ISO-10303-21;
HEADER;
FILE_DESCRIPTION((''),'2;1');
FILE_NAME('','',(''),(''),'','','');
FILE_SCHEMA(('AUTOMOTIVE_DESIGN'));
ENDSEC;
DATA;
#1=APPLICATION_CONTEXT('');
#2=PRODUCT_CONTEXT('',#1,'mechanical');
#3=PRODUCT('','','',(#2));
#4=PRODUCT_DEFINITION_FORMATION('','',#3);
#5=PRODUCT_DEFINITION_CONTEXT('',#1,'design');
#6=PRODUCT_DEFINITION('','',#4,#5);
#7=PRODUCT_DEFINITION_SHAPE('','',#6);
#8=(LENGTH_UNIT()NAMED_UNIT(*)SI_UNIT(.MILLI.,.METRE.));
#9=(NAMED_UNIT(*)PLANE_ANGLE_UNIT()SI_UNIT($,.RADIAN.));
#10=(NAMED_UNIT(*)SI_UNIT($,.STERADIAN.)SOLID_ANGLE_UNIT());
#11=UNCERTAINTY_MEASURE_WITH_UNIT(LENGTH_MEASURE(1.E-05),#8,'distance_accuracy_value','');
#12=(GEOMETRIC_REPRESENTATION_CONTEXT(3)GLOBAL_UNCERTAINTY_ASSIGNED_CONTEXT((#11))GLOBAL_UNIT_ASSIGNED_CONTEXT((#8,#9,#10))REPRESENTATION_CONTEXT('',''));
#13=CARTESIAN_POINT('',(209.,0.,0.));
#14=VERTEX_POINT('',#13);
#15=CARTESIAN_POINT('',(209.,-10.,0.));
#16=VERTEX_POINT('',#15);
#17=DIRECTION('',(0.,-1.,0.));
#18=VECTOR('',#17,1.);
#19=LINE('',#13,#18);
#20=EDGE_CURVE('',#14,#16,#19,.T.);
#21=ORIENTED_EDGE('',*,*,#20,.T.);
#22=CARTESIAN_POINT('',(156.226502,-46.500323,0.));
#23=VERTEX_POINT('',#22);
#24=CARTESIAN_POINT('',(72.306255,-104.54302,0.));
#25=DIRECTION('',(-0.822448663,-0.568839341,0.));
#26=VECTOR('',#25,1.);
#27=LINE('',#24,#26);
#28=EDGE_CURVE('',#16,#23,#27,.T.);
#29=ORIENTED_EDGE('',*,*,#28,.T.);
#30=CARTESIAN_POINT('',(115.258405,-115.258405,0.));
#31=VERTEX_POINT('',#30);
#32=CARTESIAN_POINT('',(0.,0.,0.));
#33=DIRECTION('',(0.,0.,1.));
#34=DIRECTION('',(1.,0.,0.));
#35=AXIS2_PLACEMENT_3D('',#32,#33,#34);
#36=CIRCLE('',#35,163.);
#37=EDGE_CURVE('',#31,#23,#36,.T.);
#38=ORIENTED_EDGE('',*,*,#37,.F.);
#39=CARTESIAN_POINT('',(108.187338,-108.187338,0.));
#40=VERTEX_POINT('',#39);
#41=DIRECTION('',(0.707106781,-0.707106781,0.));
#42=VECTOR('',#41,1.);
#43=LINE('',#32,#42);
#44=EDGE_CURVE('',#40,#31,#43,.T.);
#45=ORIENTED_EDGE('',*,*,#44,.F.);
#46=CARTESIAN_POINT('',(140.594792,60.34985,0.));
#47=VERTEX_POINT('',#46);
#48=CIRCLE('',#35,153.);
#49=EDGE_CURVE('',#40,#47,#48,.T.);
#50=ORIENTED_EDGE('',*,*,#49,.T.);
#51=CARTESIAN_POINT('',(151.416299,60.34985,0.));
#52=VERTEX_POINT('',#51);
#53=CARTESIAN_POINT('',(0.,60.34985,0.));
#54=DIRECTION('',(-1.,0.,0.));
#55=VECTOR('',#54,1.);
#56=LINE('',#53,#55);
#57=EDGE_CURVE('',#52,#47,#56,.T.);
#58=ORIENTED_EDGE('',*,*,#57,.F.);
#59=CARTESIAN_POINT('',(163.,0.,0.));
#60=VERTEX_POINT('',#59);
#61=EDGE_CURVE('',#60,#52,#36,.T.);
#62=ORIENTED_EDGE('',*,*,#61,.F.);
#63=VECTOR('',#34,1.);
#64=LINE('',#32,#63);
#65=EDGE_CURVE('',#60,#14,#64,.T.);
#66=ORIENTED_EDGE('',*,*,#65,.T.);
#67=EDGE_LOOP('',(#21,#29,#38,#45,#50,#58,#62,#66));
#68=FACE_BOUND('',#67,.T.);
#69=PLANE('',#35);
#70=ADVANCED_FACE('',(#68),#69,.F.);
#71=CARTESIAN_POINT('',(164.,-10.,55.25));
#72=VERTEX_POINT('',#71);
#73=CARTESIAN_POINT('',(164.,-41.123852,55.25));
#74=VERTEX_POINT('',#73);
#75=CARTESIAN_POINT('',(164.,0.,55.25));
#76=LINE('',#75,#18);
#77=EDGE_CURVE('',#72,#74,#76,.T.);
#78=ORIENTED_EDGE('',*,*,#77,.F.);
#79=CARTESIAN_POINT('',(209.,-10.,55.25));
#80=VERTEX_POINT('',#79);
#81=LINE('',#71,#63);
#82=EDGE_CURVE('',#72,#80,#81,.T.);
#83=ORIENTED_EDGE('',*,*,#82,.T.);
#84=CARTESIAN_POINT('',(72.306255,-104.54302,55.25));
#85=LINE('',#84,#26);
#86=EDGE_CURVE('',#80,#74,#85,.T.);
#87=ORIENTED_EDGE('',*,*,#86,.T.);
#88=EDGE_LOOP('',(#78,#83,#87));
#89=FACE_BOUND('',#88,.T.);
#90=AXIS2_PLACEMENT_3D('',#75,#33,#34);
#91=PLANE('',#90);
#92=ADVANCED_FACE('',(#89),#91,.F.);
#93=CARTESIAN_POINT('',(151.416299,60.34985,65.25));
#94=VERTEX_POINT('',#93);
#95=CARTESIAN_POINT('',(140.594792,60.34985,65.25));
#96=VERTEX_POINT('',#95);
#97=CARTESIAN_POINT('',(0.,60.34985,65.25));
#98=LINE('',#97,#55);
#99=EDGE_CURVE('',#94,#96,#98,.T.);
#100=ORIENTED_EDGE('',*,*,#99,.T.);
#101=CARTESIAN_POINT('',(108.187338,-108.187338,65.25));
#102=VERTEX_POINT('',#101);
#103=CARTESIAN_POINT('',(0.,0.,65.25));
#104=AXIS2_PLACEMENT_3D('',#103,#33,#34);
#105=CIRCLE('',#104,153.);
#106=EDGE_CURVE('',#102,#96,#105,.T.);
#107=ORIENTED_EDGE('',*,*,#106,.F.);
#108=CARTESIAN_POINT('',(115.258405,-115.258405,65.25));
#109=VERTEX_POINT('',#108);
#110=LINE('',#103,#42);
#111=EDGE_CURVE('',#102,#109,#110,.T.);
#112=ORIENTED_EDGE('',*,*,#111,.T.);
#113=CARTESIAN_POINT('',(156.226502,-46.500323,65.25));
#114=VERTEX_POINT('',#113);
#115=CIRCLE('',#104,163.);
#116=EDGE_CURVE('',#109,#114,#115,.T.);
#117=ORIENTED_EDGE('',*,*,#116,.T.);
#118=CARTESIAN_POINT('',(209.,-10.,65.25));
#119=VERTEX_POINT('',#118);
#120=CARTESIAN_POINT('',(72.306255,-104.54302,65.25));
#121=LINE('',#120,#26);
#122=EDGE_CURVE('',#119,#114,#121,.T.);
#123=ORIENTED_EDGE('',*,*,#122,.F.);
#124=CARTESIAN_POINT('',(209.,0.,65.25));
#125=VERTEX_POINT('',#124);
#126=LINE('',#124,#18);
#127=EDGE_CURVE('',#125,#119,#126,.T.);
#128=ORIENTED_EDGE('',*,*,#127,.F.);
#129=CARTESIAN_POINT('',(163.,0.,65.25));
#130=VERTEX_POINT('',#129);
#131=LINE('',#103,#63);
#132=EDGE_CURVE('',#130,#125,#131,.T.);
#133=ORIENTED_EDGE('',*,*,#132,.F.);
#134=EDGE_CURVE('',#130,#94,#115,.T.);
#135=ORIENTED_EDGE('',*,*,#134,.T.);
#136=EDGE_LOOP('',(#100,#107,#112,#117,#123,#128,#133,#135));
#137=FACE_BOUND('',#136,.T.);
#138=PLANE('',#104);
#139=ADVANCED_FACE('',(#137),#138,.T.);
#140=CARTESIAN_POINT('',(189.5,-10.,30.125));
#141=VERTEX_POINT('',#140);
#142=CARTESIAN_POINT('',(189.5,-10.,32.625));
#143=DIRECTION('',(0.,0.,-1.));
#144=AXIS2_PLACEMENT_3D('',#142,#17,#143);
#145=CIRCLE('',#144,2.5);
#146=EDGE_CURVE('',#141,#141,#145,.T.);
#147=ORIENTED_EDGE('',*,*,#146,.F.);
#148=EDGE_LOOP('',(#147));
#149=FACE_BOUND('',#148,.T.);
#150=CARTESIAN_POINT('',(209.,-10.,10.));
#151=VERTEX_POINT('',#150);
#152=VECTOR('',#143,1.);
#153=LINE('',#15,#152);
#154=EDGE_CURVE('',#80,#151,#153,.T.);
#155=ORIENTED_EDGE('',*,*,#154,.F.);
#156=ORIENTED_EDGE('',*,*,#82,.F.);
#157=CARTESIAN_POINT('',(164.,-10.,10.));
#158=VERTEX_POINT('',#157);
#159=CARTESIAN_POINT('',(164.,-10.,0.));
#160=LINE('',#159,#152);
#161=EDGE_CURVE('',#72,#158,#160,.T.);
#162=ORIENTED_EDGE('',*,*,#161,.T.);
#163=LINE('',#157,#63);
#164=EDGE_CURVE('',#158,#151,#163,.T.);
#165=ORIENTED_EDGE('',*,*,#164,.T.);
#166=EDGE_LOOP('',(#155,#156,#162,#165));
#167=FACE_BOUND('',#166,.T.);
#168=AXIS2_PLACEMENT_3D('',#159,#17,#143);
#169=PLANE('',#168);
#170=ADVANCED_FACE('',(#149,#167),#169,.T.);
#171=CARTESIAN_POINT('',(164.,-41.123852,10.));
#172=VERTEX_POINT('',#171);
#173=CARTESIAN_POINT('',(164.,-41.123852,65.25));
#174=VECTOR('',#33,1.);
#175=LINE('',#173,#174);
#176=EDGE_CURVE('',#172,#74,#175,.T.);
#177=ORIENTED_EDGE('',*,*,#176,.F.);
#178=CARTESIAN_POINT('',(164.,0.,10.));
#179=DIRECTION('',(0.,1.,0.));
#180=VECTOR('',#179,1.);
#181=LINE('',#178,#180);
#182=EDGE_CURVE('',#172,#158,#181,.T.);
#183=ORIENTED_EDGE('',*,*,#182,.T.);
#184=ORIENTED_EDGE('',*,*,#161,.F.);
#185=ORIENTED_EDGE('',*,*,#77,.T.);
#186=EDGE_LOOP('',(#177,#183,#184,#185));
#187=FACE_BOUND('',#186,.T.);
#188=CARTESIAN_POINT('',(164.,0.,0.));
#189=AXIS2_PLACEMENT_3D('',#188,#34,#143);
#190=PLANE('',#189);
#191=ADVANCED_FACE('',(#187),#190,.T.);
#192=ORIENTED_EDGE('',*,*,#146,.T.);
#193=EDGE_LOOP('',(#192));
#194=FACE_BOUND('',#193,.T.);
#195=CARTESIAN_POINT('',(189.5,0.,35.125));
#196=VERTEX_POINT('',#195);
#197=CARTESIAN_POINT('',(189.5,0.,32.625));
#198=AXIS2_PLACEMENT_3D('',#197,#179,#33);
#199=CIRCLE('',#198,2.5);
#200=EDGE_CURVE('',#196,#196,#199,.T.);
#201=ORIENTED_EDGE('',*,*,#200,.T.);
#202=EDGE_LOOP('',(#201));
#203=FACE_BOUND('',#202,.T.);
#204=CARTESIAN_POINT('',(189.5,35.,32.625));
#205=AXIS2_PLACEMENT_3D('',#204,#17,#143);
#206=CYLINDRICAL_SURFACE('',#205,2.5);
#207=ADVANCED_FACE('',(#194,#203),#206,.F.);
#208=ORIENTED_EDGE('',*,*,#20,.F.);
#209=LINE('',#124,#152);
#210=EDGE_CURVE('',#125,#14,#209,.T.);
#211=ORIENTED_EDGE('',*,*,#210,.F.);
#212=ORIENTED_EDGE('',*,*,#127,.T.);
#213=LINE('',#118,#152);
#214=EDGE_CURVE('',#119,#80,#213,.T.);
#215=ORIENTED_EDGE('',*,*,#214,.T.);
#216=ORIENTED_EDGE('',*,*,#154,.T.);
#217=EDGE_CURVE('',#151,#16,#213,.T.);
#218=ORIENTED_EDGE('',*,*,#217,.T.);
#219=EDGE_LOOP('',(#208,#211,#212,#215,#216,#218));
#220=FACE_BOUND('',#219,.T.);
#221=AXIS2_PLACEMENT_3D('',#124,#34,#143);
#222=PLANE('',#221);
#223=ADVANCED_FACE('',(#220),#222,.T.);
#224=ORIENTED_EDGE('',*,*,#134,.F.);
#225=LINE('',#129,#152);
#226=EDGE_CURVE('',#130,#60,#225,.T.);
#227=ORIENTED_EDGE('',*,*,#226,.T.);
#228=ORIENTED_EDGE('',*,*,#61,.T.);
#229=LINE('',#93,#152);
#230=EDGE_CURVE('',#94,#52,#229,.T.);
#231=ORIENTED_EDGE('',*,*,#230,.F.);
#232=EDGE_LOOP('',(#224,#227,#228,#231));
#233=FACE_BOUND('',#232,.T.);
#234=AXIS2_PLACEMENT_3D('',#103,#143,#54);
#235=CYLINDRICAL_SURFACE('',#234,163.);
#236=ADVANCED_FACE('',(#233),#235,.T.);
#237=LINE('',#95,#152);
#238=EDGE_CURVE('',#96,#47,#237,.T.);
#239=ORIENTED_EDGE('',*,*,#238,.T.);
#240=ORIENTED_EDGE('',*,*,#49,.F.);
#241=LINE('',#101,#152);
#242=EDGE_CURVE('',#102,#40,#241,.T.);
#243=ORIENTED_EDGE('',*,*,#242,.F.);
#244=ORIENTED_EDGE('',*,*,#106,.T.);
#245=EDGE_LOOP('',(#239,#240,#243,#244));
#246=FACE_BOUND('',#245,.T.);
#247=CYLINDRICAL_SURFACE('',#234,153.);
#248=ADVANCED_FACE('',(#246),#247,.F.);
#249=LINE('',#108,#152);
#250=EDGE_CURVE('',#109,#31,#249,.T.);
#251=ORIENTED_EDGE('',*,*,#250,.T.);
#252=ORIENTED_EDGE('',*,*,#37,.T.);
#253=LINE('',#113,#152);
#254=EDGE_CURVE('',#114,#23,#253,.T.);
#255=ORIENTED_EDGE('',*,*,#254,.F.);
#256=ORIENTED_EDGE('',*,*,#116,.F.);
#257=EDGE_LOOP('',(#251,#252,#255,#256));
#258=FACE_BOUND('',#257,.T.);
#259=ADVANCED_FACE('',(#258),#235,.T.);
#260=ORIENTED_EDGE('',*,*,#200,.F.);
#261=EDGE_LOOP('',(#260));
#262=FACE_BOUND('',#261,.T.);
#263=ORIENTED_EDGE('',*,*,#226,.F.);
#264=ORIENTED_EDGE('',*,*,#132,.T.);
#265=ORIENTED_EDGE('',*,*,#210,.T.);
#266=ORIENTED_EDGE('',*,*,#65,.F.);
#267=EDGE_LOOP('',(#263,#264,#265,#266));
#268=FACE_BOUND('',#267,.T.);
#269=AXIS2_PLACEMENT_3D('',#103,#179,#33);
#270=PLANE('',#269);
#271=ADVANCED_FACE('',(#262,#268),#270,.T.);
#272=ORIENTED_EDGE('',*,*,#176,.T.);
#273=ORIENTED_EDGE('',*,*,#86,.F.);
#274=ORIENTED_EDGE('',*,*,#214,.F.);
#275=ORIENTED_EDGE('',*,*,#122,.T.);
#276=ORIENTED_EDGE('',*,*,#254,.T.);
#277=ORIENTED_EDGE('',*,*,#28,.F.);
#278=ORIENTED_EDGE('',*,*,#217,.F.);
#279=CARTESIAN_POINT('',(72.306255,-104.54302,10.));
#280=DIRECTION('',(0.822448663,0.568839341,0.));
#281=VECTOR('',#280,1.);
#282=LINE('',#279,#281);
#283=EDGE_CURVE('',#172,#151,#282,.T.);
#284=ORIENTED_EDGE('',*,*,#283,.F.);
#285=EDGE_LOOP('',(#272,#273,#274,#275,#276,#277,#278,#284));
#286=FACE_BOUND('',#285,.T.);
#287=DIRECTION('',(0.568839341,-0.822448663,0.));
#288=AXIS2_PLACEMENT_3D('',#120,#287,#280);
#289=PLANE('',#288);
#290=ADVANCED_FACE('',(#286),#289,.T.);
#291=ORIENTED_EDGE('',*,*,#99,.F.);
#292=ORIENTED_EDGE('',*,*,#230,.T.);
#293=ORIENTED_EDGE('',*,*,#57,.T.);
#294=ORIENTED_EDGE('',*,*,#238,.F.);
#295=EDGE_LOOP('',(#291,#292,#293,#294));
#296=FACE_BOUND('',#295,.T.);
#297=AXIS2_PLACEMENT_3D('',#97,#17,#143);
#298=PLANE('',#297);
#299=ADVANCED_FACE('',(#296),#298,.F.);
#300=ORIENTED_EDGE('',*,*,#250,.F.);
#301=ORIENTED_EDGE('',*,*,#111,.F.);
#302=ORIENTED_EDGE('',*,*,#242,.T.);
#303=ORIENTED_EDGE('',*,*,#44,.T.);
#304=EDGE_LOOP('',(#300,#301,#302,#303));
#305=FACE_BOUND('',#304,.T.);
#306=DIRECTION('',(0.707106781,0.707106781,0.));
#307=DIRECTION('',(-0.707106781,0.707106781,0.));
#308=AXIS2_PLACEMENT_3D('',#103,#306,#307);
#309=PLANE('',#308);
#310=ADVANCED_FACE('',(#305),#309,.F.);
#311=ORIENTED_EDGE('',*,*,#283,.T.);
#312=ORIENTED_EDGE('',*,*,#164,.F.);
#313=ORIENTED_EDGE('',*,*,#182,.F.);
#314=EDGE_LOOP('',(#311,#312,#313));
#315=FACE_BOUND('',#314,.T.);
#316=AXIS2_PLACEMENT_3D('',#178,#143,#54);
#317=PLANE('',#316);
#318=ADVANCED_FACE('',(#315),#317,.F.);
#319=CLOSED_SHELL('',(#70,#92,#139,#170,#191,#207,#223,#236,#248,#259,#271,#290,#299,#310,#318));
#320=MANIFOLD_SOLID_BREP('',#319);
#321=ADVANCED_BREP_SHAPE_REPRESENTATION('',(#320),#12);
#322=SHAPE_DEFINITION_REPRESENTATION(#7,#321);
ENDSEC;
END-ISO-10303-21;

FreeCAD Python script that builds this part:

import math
import FreeCAD as App
import Part
import Sketcher
Q = App.Units.Quantity


def add_polygon(sketch, points):
    """Adds a closed chain of lines whose ends are joined by coincident constraints."""
    first, n = sketch.GeometryCount, len(points)
    for a, b in zip(points, points[1:] + points[:1]):
        sketch.addGeometry(Part.LineSegment(App.Vector(*a, 0), App.Vector(*b, 0)), False)
    for i in range(n):
        sketch.addConstraint(Sketcher.Constraint("Coincident", first + i, 2, first + (i + 1) % n, 1))

doc = App.newDocument("Part")
body = doc.addObject("PartDesign::Body", "Body")

# Sketch on XY plane
sketch1 = body.newObject("Sketcher::SketchObject", "Sketch")
sketch1.AttachmentSupport = (doc.getObject("XY_Plane"), [""])
sketch1.MapMode = "FlatFace"
sketch1.addGeometry(Part.LineSegment(App.Vector(209, 0, 0), App.Vector(163, 0, 0)), False)
sketch1.addGeometry(Part.ArcOfCircle(Part.Circle(App.Vector(0, 0, 0), App.Vector(0, 0, 1), 163), math.radians(0), math.radians(22)), False)
sketch1.addGeometry(Part.LineSegment(App.Vector(151, 60, 0), App.Vector(141, 60, 0)), False)
sketch1.addGeometry(Part.ArcOfCircle(Part.Circle(App.Vector(0, 0, 0), App.Vector(0, 0, 1), 153), math.radians(-45), math.radians(23)), False)
sketch1.addGeometry(Part.LineSegment(App.Vector(108, -108, 0), App.Vector(115, -115, 0)), False)
sketch1.addGeometry(Part.ArcOfCircle(Part.Circle(App.Vector(0, 0, 0), App.Vector(0, 0, 1), 163), math.radians(-45), math.radians(-17)), False)
sketch1.addGeometry(Part.LineSegment(App.Vector(156, -47, 0), App.Vector(209, -10, 0)), False)
sketch1.addGeometry(Part.LineSegment(App.Vector(209, -10, 0), App.Vector(209, 0, 0)), False)
sketch1.addConstraint(Sketcher.Constraint("Coincident", 0, 2, 1, 1))
sketch1.addConstraint(Sketcher.Constraint("Coincident", 1, 2, 2, 1))
sketch1.addConstraint(Sketcher.Constraint("Coincident", 2, 2, 3, 2))
sketch1.addConstraint(Sketcher.Constraint("Coincident", 3, 1, 4, 1))
sketch1.addConstraint(Sketcher.Constraint("Coincident", 4, 2, 5, 1))
sketch1.addConstraint(Sketcher.Constraint("Coincident", 5, 2, 6, 1))
sketch1.addConstraint(Sketcher.Constraint("Coincident", 6, 2, 7, 1))
sketch1.addConstraint(Sketcher.Constraint("Coincident", 7, 2, 0, 1))
sketch1.addConstraint(Sketcher.Constraint("Horizontal", 0))
sketch1.addConstraint(Sketcher.Constraint("Horizontal", 2))
sketch1.addConstraint(Sketcher.Constraint("Vertical", 7))
sketch1.addConstraint(Sketcher.Constraint("Coincident", 1, 3, -1, 1))
sketch1.addConstraint(Sketcher.Constraint("Coincident", 3, 3, -1, 1))
sketch1.addConstraint(Sketcher.Constraint("Coincident", 5, 3, -1, 1))
sketch1.addConstraint(Sketcher.Constraint("Equal", 1, 5))
sketch1.addConstraint(Sketcher.Constraint("PointOnObject", 0, 2, -1))
sketch1.addConstraint(Sketcher.Constraint("Radius", 1, 163.0))
sketch1.addConstraint(Sketcher.Constraint("Radius", 3, 153.0))
sketch1.addConstraint(Sketcher.Constraint("DistanceX", 0, 2, 0, 1, 46.0))
sketch1.addConstraint(Sketcher.Constraint("DistanceY", 7, 1, 7, 2, 10.0))
sketch1.addConstraint(Sketcher.Constraint("Angle", 4, Q("-45 deg")))
sketch1.addConstraint(Sketcher.Constraint("DistanceX", -1, 1, 1, 2, 151.416299))
sketch1.addConstraint(Sketcher.Constraint("DistanceX", 2, 2, 5, 2, 15.63171))
sketch1.addConstraint(Sketcher.Constraint("DistanceX", -1, 1, 3, 1, 108.187338))
pad1 = body.newObject("PartDesign::Pad", "Pad")
pad1.Profile = sketch1
pad1.Length = 65.25

# Sketch on YZ plane
sketch2 = body.newObject("Sketcher::SketchObject", "Sketch001")
sketch2.AttachmentSupport = (doc.getObject("YZ_Plane"), [""])
sketch2.MapMode = "FlatFace"
sketch2.AttachmentOffset = App.Placement(App.Vector(0, 0, 209), App.Rotation())
add_polygon(sketch2, [(-10, 55), (-47, 55), (-47, 10), (-10, 10)])  # lines 0-3
sketch2.addConstraint(Sketcher.Constraint("Horizontal", 0))
sketch2.addConstraint(Sketcher.Constraint("Vertical", 1))
sketch2.addConstraint(Sketcher.Constraint("Horizontal", 2))
sketch2.addConstraint(Sketcher.Constraint("Vertical", 3))
sketch2.addConstraint(Sketcher.Constraint("DistanceY", -1, 1, 1, 2, 10.0))
sketch2.addConstraint(Sketcher.Constraint("DistanceX", 2, 2, -1, 1, 10.0))
sketch2.addConstraint(Sketcher.Constraint("DistanceY", 1, 2, 1, 1, 45.25))
sketch2.addConstraint(Sketcher.Constraint("DistanceX", 0, 2, 0, 1, 36.500323))
pocket1 = body.newObject("PartDesign::Pocket", "Pocket")
pocket1.Profile = sketch2
pocket1.Length = 45

# Sketch on YZ plane
sketch3 = body.newObject("Sketcher::SketchObject", "Sketch002")
sketch3.AttachmentSupport = (doc.getObject("YZ_Plane"), [""])
sketch3.MapMode = "FlatFace"
sketch3.AttachmentOffset = App.Placement(App.Vector(0, 0, 10), App.Rotation())
sketch3.addGeometry(Part.Circle(App.Vector(-172.8, 32.6, 0), App.Vector(0, 0, 1), 2.5), False)
sketch3.addConstraint(Sketcher.Constraint("Diameter", 0, 5.0))
sketch3.addConstraint(Sketcher.Constraint("DistanceY", -1, 1, 0, 3, 32.625))
sketch3.addConstraint(Sketcher.Constraint("DistanceX", 0, 3, -1, 1, 172.846481))
pocket2 = body.newObject("PartDesign::Pocket", "Pocket001")
pocket2.Profile = sketch3
pocket2.Length = 45

# Sketch on XZ plane
sketch4 = body.newObject("Sketcher::SketchObject", "Sketch003")
sketch4.AttachmentSupport = (doc.getObject("XZ_Plane"), [""])
sketch4.MapMode = "FlatFace"
sketch4.AttachmentOffset = App.Placement(App.Vector(0, 0, 10), App.Rotation())
sketch4.addGeometry(Part.Circle(App.Vector(189.5, 32.6, 0), App.Vector(0, 0, 1), 2.5), False)
sketch4.addConstraint(Sketcher.Constraint("Diameter", 0, 5.0))
sketch4.addConstraint(Sketcher.Constraint("DistanceX", -1, 1, 0, 3, 189.5))
sketch4.addConstraint(Sketcher.Constraint("DistanceY", -1, 1, 0, 3, 32.625))
pocket3 = body.newObject("PartDesign::Pocket", "Pocket002")
pocket3.Profile = sketch4
pocket3.Length = 45

doc.recompute()
